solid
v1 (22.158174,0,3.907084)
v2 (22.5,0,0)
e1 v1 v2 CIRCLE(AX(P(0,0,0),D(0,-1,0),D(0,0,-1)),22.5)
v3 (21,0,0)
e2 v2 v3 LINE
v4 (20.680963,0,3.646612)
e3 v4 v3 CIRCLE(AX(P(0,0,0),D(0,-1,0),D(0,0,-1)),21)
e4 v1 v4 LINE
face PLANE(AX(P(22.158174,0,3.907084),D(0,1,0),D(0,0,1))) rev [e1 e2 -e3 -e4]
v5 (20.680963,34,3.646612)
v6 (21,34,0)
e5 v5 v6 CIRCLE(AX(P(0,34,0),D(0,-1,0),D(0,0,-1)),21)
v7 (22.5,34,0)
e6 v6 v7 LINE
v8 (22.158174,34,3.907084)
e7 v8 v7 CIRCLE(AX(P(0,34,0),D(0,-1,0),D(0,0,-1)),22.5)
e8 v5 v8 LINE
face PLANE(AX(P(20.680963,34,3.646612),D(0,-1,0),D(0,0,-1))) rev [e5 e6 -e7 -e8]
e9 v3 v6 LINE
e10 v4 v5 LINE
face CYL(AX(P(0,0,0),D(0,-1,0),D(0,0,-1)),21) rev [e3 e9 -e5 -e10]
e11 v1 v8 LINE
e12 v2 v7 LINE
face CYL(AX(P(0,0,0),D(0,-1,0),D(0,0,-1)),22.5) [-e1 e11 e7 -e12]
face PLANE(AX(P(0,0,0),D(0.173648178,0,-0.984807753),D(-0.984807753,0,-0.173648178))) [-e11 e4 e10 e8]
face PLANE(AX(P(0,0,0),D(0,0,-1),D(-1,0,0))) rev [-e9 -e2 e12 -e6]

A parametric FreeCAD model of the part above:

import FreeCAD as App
import Part
import Sketcher

V = App.Vector

doc = App.newDocument("Part")
params = doc.addObject("Spreadsheet::Sheet", "Params")
for row, (alias, value) in enumerate([
    ("sketch1_height", "34 mm"),
    ("sketch1_width", "1.5 mm"),
    ("revolution_angle", "350 deg"),
], start=1):
    params.set(f"A{row}", alias)
    params.set(f"B{row}", "=" + value)
    params.setAlias(f"B{row}", alias)

body = doc.addObject("PartDesign::Body", "Body")

# Sketch on XY plane
sketch1 = doc.addObject("Sketcher::SketchObject", "Sketch")
body.addObject(sketch1)
sketch1.AttachmentSupport = (doc.XY_Plane, [""])
sketch1.MapMode = "FlatFace"
sketch1.addGeometry([
    Part.LineSegment(V(21, 34, 0), V(21, 0, 0)),
    Part.LineSegment(V(21, 0, 0), V(22.5, 0, 0)),
    Part.LineSegment(V(22.5, 0, 0), V(22.5, 34, 0)),
    Part.LineSegment(V(22.5, 34, 0), V(21, 34, 0)),
], False)
sketch1.addConstraint([
    Sketcher.Constraint("Coincident", 0, 2, 1, 1),
    Sketcher.Constraint("Coincident", 1, 2, 2, 1),
    Sketcher.Constraint("Coincident", 2, 2, 3, 1),
    Sketcher.Constraint("Coincident", 3, 2, 0, 1),
    Sketcher.Constraint("Vertical", 0),
    Sketcher.Constraint("Horizontal", 1),
    Sketcher.Constraint("Vertical", 2),
    Sketcher.Constraint("Horizontal", 3),
    Sketcher.Constraint("PointOnObject", 0, 2, -1),
    Sketcher.Constraint("DistanceY", 0, 2, 0, 1, 34.0),
    Sketcher.Constraint("DistanceX", 1, 1, 1, 2, 1.5),
    Sketcher.Constraint("DistanceX", -1, 1, 0, 2, 21.0),
])
sketch1.setExpression("Constraints[9]", "Params.sketch1_height")
sketch1.setExpression("Constraints[10]", "Params.sketch1_width")
revolution = doc.addObject("PartDesign::Revolution", "Revolution")
body.addObject(revolution)
revolution.Profile = sketch1
revolution.ReferenceAxis = (sketch1, ["V_Axis"])
revolution.setExpression("Angle", "Params.revolution_angle")

doc.recompute()
